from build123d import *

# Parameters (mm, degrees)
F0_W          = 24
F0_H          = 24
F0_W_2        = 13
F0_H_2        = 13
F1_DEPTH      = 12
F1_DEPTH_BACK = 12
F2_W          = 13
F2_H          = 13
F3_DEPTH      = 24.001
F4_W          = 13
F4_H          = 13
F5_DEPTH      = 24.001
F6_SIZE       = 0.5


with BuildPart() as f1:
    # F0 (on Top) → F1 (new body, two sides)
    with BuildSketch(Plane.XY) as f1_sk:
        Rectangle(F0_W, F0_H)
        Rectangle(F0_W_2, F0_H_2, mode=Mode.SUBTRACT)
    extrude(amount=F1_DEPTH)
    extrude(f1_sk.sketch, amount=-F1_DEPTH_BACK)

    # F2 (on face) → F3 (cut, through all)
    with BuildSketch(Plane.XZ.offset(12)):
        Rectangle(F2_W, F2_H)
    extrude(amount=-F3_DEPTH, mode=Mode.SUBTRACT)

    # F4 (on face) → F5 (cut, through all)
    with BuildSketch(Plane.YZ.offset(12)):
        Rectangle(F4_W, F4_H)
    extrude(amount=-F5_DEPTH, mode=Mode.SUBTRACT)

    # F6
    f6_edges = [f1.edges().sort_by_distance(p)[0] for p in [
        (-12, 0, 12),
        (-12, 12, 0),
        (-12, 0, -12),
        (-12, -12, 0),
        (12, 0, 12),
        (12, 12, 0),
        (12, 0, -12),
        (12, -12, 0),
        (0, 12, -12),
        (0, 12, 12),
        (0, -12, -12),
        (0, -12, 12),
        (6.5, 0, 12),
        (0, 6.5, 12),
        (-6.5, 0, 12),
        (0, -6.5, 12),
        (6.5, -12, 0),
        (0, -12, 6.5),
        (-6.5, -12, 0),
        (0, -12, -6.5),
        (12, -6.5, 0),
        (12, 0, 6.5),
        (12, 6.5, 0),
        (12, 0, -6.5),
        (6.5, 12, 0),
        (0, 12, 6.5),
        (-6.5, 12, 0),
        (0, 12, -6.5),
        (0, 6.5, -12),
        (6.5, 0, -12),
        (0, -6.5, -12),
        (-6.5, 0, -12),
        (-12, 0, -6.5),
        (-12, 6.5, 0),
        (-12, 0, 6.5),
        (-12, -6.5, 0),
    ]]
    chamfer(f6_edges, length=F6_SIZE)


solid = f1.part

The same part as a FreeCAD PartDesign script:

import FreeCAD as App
import Part
import Sketcher


def edges_at(feature, points):
    """Names of the edges that pass closest to the given points."""
    edges = feature.Shape.Edges
    near = lambda p: min(range(len(edges)), key=lambda i: edges[i].distToShape(Part.Vertex(*p))[0])
    return sorted({f"Edge{near(p) + 1}" for p in points})

doc = App.newDocument("Part")
body = doc.addObject("PartDesign::Body", "Body")

sketch1 = body.newObject("Sketcher::SketchObject", "Sketch")
sketch1.AttachmentSupport = (doc.getObject("XY_Plane"), [""])
sketch1.MapMode = "FlatFace"
sketch1.addGeometry(Part.LineSegment(App.Vector(-12, 12, 0), App.Vector(-12, -12, 0)), False)
sketch1.addGeometry(Part.LineSegment(App.Vector(-12, -12, 0), App.Vector(12, -12, 0)), False)
sketch1.addGeometry(Part.LineSegment(App.Vector(12, -12, 0), App.Vector(12, 12, 0)), False)
sketch1.addGeometry(Part.LineSegment(App.Vector(12, 12, 0), App.Vector(-12, 12, 0)), False)
sketch1.addGeometry(Part.LineSegment(App.Vector(6, -6, 0), App.Vector(-6, -6, 0)), False)
sketch1.addGeometry(Part.LineSegment(App.Vector(-6, -6, 0), App.Vector(-6, 6, 0)), False)
sketch1.addGeometry(Part.LineSegment(App.Vector(-6, 6, 0), App.Vector(6, 6, 0)), False)
sketch1.addGeometry(Part.LineSegment(App.Vector(6, 6, 0), App.Vector(6, -6, 0)), False)
sketch1.addConstraint(Sketcher.Constraint("Coincident", 0, 2, 1, 1))
sketch1.addConstraint(Sketcher.Constraint("Coincident", 1, 2, 2, 1))
sketch1.addConstraint(Sketcher.Constraint("Coincident", 2, 2, 3, 1))
sketch1.addConstraint(Sketcher.Constraint("Coincident", 3, 2, 0, 1))
sketch1.addConstraint(Sketcher.Constraint("Coincident", 4, 2, 5, 1))
sketch1.addConstraint(Sketcher.Constraint("Coincident", 5, 2, 6, 1))
sketch1.addConstraint(Sketcher.Constraint("Coincident", 6, 2, 7, 1))
sketch1.addConstraint(Sketcher.Constraint("Coincident", 7, 2, 4, 1))
sketch1.addConstraint(Sketcher.Constraint("Vertical", 0))
sketch1.addConstraint(Sketcher.Constraint("Horizontal", 1))
sketch1.addConstraint(Sketcher.Constraint("Vertical", 2))
sketch1.addConstraint(Sketcher.Constraint("Horizontal", 3))
sketch1.addConstraint(Sketcher.Constraint("Horizontal", 4))
sketch1.addConstraint(Sketcher.Constraint("Vertical", 5))
sketch1.addConstraint(Sketcher.Constraint("Horizontal", 6))
sketch1.addConstraint(Sketcher.Constraint("Vertical", 7))
sketch1.addConstraint(Sketcher.Constraint("Symmetric", 0, 2, 2, 2, -1, 1))
sketch1.addConstraint(Sketcher.Constraint("Symmetric", 4, 2, 6, 2, -1, 1))
sketch1.addConstraint(Sketcher.Constraint("Equal", 3, 0))
sketch1.addConstraint(Sketcher.Constraint("Equal", 6, 5))
sketch1.addConstraint(Sketcher.Constraint("DistanceX", 1, 1, 1, 2, 24.0))
sketch1.addConstraint(Sketcher.Constraint("DistanceX", 4, 2, 4, 1, 13.0))
pad1 = body.newObject("PartDesign::Pad", "Pad")
pad1.Profile = sketch1
pad1.Type = "TwoLengths"
pad1.Length = 12
pad1.Length2 = 12

sketch2 = body.newObject("Sketcher::SketchObject", "Sketch001")
sketch2.AttachmentSupport = (doc.getObject("XZ_Plane"), [""])
sketch2.MapMode = "FlatFace"
sketch2.AttachmentOffset = App.Placement(App.Vector(0, 0, 12), App.Rotation())
sketch2.addGeometry(Part.LineSegment(App.Vector(-6, 6, 0), App.Vector(-6, -6, 0)), False)
sketch2.addGeometry(Part.LineSegment(App.Vector(-6, -6, 0), App.Vector(6, -6, 0)), False)
sketch2.addGeometry(Part.LineSegment(App.Vector(6, -6, 0), App.Vector(6, 6, 0)), False)
sketch2.addGeometry(Part.LineSegment(App.Vector(6, 6, 0), App.Vector(-6, 6, 0)), False)
sketch2.addConstraint(Sketcher.Constraint("Coincident", 0, 2, 1, 1))
sketch2.addConstraint(Sketcher.Constraint("Coincident", 1, 2, 2, 1))
sketch2.addConstraint(Sketcher.Constraint("Coincident", 2, 2, 3, 1))
sketch2.addConstraint(Sketcher.Constraint("Coincident", 3, 2, 0, 1))
sketch2.addConstraint(Sketcher.Constraint("Vertical", 0))
sketch2.addConstraint(Sketcher.Constraint("Horizontal", 1))
sketch2.addConstraint(Sketcher.Constraint("Vertical", 2))
sketch2.addConstraint(Sketcher.Constraint("Horizontal", 3))
sketch2.addConstraint(Sketcher.Constraint("Symmetric", 0, 2, 2, 2, -1, 1))
sketch2.addConstraint(Sketcher.Constraint("Equal", 3, 0))
sketch2.addConstraint(Sketcher.Constraint("DistanceX", 1, 1, 1, 2, 13.0))
pocket1 = body.newObject("PartDesign::Pocket", "Pocket")
pocket1.Profile = sketch2
pocket1.Type = "ThroughAll"

sketch3 = body.newObject("Sketcher::SketchObject", "Sketch002")
sketch3.AttachmentSupport = (doc.getObject("YZ_Plane"), [""])
sketch3.MapMode = "FlatFace"
sketch3.AttachmentOffset = App.Placement(App.Vector(0, 0, 12), App.Rotation())
sketch3.addGeometry(Part.LineSegment(App.Vector(-6, 6, 0), App.Vector(-6, -6, 0)), False)
sketch3.addGeometry(Part.LineSegment(App.Vector(-6, -6, 0), App.Vector(6, -6, 0)), False)
sketch3.addGeometry(Part.LineSegment(App.Vector(6, -6, 0), App.Vector(6, 6, 0)), False)
sketch3.addGeometry(Part.LineSegment(App.Vector(6, 6, 0), App.Vector(-6, 6, 0)), False)
sketch3.addConstraint(Sketcher.Constraint("Coincident", 0, 2, 1, 1))
sketch3.addConstraint(Sketcher.Constraint("Coincident", 1, 2, 2, 1))
sketch3.addConstraint(Sketcher.Constraint("Coincident", 2, 2, 3, 1))
sketch3.addConstraint(Sketcher.Constraint("Coincident", 3, 2, 0, 1))
sketch3.addConstraint(Sketcher.Constraint("Vertical", 0))
sketch3.addConstraint(Sketcher.Constraint("Horizontal", 1))
sketch3.addConstraint(Sketcher.Constraint("Vertical", 2))
sketch3.addConstraint(Sketcher.Constraint("Horizontal", 3))
sketch3.addConstraint(Sketcher.Constraint("Symmetric", 0, 2, 2, 2, -1, 1))
sketch3.addConstraint(Sketcher.Constraint("Equal", 3, 0))
sketch3.addConstraint(Sketcher.Constraint("DistanceX", 1, 1, 1, 2, 13.0))
pocket2 = body.newObject("PartDesign::Pocket", "Pocket001")
pocket2.Profile = sketch3
pocket2.Type = "ThroughAll"
doc.recompute()

chamfer = body.newObject("PartDesign::Chamfer", "Chamfer")
chamfer.Base = (pocket2, edges_at(pocket2, [
    (-12, 0, 12),
    (-12, 12, 0),
    (-12, 0, -12),
    (-12, -12, 0),
    (12, 0, 12),
    (12, 12, 0),
    (12, 0, -12),
    (12, -12, 0),
    (0, 12, -12),
    (0, 12, 12),
    (0, -12, -12),
    (0, -12, 12),
    (6.5, 0, 12),
    (0, 6.5, 12),
    (-6.5, 0, 12),
    (0, -6.5, 12),
    (6.5, -12, 0),
    (0, -12, 6.5),
    (-6.5, -12, 0),
    (0, -12, -6.5),
    (12, -6.5, 0),
    (12, 0, 6.5),
    (12, 6.5, 0),
    (12, 0, -6.5),
    (6.5, 12, 0),
    (0, 12, 6.5),
    (-6.5, 12, 0),
    (0, 12, -6.5),
    (0, 6.5, -12),
    (6.5, 0, -12),
    (0, -6.5, -12),
    (-6.5, 0, -12),
    (-12, 0, -6.5),
    (-12, 6.5, 0),
    (-12, 0, 6.5),
    (-12, -6.5, 0),
]))
chamfer.Size = 0.5

doc.recompute()
